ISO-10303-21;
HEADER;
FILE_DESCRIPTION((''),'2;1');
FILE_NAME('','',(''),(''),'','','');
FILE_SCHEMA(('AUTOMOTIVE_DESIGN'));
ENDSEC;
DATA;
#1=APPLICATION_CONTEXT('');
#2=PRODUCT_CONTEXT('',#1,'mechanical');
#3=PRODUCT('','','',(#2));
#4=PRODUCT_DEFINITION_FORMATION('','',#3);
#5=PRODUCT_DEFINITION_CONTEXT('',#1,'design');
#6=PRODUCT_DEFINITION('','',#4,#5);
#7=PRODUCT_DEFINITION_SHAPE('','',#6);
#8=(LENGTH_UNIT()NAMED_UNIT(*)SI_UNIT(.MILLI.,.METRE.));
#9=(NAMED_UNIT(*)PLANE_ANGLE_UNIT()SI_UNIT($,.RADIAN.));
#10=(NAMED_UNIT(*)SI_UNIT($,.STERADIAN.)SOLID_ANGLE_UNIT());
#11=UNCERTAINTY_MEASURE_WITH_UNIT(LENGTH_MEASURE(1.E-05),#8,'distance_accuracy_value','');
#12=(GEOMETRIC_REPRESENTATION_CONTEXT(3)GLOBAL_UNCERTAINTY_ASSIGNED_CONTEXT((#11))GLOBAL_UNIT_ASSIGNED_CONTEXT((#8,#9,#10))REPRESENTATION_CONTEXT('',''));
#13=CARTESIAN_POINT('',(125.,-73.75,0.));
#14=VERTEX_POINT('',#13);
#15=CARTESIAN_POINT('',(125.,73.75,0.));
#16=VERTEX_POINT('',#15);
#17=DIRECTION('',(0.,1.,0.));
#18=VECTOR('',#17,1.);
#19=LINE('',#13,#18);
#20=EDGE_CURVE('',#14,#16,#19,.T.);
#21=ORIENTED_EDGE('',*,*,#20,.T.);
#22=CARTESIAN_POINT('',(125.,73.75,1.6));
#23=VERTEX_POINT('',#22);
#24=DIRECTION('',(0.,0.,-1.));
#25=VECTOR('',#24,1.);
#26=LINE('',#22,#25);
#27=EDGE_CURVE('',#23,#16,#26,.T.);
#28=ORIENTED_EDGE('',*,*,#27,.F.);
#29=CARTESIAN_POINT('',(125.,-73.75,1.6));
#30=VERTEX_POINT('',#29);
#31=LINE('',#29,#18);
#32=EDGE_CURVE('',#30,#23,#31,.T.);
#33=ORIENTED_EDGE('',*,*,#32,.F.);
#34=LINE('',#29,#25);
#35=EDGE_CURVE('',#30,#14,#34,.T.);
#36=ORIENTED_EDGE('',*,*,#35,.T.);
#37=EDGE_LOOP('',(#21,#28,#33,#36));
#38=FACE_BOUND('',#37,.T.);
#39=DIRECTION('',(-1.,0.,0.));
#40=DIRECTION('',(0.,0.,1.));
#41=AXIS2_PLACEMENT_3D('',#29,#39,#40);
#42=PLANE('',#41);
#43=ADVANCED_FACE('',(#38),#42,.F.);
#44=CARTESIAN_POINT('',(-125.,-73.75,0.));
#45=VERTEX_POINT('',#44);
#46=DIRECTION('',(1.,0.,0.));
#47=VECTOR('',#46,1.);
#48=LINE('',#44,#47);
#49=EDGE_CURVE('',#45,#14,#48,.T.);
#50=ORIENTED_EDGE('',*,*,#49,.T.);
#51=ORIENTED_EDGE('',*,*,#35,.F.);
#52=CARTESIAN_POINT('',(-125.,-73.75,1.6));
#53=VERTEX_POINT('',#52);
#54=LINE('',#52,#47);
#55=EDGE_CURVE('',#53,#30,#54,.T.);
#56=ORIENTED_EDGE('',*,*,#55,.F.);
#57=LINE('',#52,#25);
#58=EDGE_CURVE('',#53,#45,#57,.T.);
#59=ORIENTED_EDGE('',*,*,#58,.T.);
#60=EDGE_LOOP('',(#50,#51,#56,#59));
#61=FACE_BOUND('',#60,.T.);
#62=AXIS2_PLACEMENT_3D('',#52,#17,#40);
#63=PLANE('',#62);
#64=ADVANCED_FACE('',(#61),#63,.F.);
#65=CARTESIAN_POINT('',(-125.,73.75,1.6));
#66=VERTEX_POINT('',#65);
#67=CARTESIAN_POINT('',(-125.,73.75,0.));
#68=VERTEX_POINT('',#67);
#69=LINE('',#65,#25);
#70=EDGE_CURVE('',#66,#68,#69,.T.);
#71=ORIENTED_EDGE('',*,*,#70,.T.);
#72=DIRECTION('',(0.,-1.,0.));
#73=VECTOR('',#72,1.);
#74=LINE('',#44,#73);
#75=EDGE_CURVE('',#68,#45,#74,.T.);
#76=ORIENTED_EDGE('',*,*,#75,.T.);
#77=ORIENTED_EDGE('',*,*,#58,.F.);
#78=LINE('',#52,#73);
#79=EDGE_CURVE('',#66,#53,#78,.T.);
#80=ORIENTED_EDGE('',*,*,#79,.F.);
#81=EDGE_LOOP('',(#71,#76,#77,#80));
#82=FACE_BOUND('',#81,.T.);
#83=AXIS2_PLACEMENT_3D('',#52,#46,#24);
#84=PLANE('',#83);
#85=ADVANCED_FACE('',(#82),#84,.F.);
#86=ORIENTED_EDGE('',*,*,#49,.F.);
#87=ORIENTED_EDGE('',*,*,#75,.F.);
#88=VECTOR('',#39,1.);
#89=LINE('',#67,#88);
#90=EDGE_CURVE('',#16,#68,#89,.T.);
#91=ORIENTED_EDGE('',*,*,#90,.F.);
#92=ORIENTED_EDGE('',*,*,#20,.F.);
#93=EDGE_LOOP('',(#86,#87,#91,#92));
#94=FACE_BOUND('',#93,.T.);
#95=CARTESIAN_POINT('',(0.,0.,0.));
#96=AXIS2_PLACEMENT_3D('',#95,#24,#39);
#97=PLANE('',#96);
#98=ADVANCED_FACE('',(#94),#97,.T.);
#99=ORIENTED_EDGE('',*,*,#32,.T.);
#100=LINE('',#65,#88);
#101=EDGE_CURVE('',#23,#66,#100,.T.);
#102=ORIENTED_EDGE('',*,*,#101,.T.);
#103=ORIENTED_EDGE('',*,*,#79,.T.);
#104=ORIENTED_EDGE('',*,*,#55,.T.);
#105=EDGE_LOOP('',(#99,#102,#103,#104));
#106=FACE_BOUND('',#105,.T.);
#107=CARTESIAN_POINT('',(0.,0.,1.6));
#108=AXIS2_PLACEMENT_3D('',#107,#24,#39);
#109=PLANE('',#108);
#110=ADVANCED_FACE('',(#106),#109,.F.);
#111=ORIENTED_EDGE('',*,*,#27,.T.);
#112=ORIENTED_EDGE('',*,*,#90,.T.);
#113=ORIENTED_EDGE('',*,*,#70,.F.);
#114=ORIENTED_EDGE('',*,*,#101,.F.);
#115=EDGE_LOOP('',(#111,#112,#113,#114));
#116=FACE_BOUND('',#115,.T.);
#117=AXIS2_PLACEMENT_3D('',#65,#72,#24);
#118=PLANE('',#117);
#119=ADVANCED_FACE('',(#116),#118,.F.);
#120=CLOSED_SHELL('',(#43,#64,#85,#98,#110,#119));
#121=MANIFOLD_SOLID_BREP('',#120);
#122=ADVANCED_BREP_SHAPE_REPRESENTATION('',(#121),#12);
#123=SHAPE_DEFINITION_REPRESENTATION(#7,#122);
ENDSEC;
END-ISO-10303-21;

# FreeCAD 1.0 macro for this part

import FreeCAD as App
import Part
import Sketcher
from FreeCAD import Vector


def add_polygon(sketch, points):
    """Adds a closed chain of lines whose ends are joined by coincident constraints."""
    first, n = sketch.GeometryCount, len(points)
    for a, b in zip(points, points[1:] + points[:1]):
        sketch.addGeometry(Part.LineSegment(App.Vector(*a, 0), App.Vector(*b, 0)), False)
    for i in range(n):
        sketch.addConstraint(Sketcher.Constraint("Coincident", first + i, 2, first + (i + 1) % n, 1))

doc = App.newDocument("Part")
body = doc.addObject("PartDesign::Body", "Body")

# Sketch on XY plane
sketch1 = body.newObject("Sketcher::SketchObject", "Sketch")
sketch1.AttachmentSupport = (doc.getObject("XY_Plane"), [""])
sketch1.MapMode = "FlatFace"
add_polygon(sketch1, [(-125, 74), (-125, -74), (125, -74), (125, 74)])  # lines 0-3
sketch1.addConstraint([
    Sketcher.Constraint("Vertical", 0),
    Sketcher.Constraint("Horizontal", 1),
    Sketcher.Constraint("Vertical", 2),
    Sketcher.Constraint("Horizontal", 3),
    Sketcher.Constraint("Symmetric", 0, 2, 2, 2, -1, 1),
    Sketcher.Constraint("DistanceX", 1, 1, 1, 2, 250.0),
    Sketcher.Constraint("DistanceY", 0, 2, 0, 1, 147.5),
])
pad1 = body.newObject("PartDesign::Pad", "Pad")
pad1.Profile = sketch1
pad1.Length = 1.6

doc.recompute()
